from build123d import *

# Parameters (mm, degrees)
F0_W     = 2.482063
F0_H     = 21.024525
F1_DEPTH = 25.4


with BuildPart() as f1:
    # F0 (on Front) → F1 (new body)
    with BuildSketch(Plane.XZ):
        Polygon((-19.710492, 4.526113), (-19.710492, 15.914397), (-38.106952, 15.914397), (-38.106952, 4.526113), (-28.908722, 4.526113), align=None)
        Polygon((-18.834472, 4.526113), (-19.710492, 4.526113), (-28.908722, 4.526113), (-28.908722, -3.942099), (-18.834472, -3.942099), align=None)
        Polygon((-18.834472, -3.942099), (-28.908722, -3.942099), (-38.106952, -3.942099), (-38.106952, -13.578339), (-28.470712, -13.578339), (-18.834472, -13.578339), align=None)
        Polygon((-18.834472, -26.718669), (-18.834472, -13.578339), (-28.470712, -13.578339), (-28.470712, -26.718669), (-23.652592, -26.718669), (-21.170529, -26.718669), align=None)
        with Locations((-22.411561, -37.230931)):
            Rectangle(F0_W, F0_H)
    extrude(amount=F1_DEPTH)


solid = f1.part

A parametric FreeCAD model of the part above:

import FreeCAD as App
import Part
import Sketcher
from FreeCAD import Vector
Q = App.Units.Quantity


def add_polygon(sketch, points):
    """Adds a closed chain of lines whose ends are joined by coincident constraints."""
    first, n = sketch.GeometryCount, len(points)
    for a, b in zip(points, points[1:] + points[:1]):
        sketch.addGeometry(Part.LineSegment(App.Vector(*a, 0), App.Vector(*b, 0)), False)
    for i in range(n):
        sketch.addConstraint(Sketcher.Constraint("Coincident", first + i, 2, first + (i + 1) % n, 1))

doc = App.newDocument("Part")
body = doc.addObject("PartDesign::Body", "Body")

# Sketch on XZ plane
sketch1 = body.newObject("Sketcher::SketchObject", "Sketch")
sketch1.AttachmentSupport = (doc.getObject("XZ_Plane"), [""])
sketch1.MapMode = "FlatFace"
add_polygon(sketch1, [(-18.8, 4.5), (-19.7, 4.5), (-19.7, 15.9), (-38.1, 15.9), (-38.1, 4.5), (-28.9, 4.5), (-28.9, -3.9), (-38.1, -3.9), (-38.1, -13.6), (-28.5, -13.6), (-28.5, -26.7), (-23.7, -26.7), (-23.7, -47.7), (-21.2, -47.7), (-21.2, -26.7), (-18.8, -26.7)])  # lines 0-15
sketch1.addConstraint([
    Sketcher.Constraint("Horizontal", 0),
    Sketcher.Constraint("Vertical", 1),
    Sketcher.Constraint("Horizontal", 2),
    Sketcher.Constraint("Vertical", 3),
    Sketcher.Constraint("Horizontal", 4),
    Sketcher.Constraint("Vertical", 5),
    Sketcher.Constraint("Horizontal", 6),
    Sketcher.Constraint("Vertical", 7),
    Sketcher.Constraint("Horizontal", 8),
    Sketcher.Constraint("Vertical", 9),
    Sketcher.Constraint("Horizontal", 10),
    Sketcher.Constraint("Vertical", 11),
    Sketcher.Constraint("Horizontal", 12),
    Sketcher.Constraint("Vertical", 13),
    Sketcher.Constraint("Horizontal", 14),
    Sketcher.Constraint("Vertical", 15),
    Sketcher.Constraint("Horizontal", 0, 2, 3, 2),
    Sketcher.Constraint("Horizontal", 10, 2, 13, 2),
    Sketcher.Constraint("Vertical", 3, 2, 6, 2),
    Sketcher.Constraint("Equal", 8, 7),
    Sketcher.Constraint("DistanceX", 0, 2, 0, 1, Q("0.87602 mm")),
    Sketcher.Constraint("DistanceX", 2, 2, 2, 1, Q("18.39646 mm")),
    Sketcher.Constraint("DistanceX", 4, 1, 4, 2, Q("9.19823 mm")),
    Sketcher.Constraint("DistanceX", 8, 1, 8, 2, Q("9.63624 mm")),
    Sketcher.Constraint("DistanceX", 10, 1, 10, 2, Q("4.818119 mm")),
    Sketcher.Constraint("DistanceY", 9, 2, 9, 1, Q("13.14033 mm")),
    Sketcher.Constraint("DistanceY", 15, 1, 15, 2, Q("31.244782 mm")),
    Sketcher.Constraint("DistanceY", 5, 2, -1, 1, Q("3.942099 mm")),
    Sketcher.Constraint("DistanceX", 12, 1, 12, 2, Q("2.482063 mm")),
    Sketcher.Constraint("DistanceY", 1, 1, 1, 2, Q("11.388284 mm")),
    Sketcher.Constraint("DistanceY", 11, 2, 11, 1, Q("21.024524 mm")),
    Sketcher.Constraint("DistanceX", 0, 2, -1, 1, Q("19.710492 mm")),
])
pad1 = body.newObject("PartDesign::Pad", "Pad")
pad1.Profile = sketch1
pad1.Length = Q("1 in")

doc.recompute()
